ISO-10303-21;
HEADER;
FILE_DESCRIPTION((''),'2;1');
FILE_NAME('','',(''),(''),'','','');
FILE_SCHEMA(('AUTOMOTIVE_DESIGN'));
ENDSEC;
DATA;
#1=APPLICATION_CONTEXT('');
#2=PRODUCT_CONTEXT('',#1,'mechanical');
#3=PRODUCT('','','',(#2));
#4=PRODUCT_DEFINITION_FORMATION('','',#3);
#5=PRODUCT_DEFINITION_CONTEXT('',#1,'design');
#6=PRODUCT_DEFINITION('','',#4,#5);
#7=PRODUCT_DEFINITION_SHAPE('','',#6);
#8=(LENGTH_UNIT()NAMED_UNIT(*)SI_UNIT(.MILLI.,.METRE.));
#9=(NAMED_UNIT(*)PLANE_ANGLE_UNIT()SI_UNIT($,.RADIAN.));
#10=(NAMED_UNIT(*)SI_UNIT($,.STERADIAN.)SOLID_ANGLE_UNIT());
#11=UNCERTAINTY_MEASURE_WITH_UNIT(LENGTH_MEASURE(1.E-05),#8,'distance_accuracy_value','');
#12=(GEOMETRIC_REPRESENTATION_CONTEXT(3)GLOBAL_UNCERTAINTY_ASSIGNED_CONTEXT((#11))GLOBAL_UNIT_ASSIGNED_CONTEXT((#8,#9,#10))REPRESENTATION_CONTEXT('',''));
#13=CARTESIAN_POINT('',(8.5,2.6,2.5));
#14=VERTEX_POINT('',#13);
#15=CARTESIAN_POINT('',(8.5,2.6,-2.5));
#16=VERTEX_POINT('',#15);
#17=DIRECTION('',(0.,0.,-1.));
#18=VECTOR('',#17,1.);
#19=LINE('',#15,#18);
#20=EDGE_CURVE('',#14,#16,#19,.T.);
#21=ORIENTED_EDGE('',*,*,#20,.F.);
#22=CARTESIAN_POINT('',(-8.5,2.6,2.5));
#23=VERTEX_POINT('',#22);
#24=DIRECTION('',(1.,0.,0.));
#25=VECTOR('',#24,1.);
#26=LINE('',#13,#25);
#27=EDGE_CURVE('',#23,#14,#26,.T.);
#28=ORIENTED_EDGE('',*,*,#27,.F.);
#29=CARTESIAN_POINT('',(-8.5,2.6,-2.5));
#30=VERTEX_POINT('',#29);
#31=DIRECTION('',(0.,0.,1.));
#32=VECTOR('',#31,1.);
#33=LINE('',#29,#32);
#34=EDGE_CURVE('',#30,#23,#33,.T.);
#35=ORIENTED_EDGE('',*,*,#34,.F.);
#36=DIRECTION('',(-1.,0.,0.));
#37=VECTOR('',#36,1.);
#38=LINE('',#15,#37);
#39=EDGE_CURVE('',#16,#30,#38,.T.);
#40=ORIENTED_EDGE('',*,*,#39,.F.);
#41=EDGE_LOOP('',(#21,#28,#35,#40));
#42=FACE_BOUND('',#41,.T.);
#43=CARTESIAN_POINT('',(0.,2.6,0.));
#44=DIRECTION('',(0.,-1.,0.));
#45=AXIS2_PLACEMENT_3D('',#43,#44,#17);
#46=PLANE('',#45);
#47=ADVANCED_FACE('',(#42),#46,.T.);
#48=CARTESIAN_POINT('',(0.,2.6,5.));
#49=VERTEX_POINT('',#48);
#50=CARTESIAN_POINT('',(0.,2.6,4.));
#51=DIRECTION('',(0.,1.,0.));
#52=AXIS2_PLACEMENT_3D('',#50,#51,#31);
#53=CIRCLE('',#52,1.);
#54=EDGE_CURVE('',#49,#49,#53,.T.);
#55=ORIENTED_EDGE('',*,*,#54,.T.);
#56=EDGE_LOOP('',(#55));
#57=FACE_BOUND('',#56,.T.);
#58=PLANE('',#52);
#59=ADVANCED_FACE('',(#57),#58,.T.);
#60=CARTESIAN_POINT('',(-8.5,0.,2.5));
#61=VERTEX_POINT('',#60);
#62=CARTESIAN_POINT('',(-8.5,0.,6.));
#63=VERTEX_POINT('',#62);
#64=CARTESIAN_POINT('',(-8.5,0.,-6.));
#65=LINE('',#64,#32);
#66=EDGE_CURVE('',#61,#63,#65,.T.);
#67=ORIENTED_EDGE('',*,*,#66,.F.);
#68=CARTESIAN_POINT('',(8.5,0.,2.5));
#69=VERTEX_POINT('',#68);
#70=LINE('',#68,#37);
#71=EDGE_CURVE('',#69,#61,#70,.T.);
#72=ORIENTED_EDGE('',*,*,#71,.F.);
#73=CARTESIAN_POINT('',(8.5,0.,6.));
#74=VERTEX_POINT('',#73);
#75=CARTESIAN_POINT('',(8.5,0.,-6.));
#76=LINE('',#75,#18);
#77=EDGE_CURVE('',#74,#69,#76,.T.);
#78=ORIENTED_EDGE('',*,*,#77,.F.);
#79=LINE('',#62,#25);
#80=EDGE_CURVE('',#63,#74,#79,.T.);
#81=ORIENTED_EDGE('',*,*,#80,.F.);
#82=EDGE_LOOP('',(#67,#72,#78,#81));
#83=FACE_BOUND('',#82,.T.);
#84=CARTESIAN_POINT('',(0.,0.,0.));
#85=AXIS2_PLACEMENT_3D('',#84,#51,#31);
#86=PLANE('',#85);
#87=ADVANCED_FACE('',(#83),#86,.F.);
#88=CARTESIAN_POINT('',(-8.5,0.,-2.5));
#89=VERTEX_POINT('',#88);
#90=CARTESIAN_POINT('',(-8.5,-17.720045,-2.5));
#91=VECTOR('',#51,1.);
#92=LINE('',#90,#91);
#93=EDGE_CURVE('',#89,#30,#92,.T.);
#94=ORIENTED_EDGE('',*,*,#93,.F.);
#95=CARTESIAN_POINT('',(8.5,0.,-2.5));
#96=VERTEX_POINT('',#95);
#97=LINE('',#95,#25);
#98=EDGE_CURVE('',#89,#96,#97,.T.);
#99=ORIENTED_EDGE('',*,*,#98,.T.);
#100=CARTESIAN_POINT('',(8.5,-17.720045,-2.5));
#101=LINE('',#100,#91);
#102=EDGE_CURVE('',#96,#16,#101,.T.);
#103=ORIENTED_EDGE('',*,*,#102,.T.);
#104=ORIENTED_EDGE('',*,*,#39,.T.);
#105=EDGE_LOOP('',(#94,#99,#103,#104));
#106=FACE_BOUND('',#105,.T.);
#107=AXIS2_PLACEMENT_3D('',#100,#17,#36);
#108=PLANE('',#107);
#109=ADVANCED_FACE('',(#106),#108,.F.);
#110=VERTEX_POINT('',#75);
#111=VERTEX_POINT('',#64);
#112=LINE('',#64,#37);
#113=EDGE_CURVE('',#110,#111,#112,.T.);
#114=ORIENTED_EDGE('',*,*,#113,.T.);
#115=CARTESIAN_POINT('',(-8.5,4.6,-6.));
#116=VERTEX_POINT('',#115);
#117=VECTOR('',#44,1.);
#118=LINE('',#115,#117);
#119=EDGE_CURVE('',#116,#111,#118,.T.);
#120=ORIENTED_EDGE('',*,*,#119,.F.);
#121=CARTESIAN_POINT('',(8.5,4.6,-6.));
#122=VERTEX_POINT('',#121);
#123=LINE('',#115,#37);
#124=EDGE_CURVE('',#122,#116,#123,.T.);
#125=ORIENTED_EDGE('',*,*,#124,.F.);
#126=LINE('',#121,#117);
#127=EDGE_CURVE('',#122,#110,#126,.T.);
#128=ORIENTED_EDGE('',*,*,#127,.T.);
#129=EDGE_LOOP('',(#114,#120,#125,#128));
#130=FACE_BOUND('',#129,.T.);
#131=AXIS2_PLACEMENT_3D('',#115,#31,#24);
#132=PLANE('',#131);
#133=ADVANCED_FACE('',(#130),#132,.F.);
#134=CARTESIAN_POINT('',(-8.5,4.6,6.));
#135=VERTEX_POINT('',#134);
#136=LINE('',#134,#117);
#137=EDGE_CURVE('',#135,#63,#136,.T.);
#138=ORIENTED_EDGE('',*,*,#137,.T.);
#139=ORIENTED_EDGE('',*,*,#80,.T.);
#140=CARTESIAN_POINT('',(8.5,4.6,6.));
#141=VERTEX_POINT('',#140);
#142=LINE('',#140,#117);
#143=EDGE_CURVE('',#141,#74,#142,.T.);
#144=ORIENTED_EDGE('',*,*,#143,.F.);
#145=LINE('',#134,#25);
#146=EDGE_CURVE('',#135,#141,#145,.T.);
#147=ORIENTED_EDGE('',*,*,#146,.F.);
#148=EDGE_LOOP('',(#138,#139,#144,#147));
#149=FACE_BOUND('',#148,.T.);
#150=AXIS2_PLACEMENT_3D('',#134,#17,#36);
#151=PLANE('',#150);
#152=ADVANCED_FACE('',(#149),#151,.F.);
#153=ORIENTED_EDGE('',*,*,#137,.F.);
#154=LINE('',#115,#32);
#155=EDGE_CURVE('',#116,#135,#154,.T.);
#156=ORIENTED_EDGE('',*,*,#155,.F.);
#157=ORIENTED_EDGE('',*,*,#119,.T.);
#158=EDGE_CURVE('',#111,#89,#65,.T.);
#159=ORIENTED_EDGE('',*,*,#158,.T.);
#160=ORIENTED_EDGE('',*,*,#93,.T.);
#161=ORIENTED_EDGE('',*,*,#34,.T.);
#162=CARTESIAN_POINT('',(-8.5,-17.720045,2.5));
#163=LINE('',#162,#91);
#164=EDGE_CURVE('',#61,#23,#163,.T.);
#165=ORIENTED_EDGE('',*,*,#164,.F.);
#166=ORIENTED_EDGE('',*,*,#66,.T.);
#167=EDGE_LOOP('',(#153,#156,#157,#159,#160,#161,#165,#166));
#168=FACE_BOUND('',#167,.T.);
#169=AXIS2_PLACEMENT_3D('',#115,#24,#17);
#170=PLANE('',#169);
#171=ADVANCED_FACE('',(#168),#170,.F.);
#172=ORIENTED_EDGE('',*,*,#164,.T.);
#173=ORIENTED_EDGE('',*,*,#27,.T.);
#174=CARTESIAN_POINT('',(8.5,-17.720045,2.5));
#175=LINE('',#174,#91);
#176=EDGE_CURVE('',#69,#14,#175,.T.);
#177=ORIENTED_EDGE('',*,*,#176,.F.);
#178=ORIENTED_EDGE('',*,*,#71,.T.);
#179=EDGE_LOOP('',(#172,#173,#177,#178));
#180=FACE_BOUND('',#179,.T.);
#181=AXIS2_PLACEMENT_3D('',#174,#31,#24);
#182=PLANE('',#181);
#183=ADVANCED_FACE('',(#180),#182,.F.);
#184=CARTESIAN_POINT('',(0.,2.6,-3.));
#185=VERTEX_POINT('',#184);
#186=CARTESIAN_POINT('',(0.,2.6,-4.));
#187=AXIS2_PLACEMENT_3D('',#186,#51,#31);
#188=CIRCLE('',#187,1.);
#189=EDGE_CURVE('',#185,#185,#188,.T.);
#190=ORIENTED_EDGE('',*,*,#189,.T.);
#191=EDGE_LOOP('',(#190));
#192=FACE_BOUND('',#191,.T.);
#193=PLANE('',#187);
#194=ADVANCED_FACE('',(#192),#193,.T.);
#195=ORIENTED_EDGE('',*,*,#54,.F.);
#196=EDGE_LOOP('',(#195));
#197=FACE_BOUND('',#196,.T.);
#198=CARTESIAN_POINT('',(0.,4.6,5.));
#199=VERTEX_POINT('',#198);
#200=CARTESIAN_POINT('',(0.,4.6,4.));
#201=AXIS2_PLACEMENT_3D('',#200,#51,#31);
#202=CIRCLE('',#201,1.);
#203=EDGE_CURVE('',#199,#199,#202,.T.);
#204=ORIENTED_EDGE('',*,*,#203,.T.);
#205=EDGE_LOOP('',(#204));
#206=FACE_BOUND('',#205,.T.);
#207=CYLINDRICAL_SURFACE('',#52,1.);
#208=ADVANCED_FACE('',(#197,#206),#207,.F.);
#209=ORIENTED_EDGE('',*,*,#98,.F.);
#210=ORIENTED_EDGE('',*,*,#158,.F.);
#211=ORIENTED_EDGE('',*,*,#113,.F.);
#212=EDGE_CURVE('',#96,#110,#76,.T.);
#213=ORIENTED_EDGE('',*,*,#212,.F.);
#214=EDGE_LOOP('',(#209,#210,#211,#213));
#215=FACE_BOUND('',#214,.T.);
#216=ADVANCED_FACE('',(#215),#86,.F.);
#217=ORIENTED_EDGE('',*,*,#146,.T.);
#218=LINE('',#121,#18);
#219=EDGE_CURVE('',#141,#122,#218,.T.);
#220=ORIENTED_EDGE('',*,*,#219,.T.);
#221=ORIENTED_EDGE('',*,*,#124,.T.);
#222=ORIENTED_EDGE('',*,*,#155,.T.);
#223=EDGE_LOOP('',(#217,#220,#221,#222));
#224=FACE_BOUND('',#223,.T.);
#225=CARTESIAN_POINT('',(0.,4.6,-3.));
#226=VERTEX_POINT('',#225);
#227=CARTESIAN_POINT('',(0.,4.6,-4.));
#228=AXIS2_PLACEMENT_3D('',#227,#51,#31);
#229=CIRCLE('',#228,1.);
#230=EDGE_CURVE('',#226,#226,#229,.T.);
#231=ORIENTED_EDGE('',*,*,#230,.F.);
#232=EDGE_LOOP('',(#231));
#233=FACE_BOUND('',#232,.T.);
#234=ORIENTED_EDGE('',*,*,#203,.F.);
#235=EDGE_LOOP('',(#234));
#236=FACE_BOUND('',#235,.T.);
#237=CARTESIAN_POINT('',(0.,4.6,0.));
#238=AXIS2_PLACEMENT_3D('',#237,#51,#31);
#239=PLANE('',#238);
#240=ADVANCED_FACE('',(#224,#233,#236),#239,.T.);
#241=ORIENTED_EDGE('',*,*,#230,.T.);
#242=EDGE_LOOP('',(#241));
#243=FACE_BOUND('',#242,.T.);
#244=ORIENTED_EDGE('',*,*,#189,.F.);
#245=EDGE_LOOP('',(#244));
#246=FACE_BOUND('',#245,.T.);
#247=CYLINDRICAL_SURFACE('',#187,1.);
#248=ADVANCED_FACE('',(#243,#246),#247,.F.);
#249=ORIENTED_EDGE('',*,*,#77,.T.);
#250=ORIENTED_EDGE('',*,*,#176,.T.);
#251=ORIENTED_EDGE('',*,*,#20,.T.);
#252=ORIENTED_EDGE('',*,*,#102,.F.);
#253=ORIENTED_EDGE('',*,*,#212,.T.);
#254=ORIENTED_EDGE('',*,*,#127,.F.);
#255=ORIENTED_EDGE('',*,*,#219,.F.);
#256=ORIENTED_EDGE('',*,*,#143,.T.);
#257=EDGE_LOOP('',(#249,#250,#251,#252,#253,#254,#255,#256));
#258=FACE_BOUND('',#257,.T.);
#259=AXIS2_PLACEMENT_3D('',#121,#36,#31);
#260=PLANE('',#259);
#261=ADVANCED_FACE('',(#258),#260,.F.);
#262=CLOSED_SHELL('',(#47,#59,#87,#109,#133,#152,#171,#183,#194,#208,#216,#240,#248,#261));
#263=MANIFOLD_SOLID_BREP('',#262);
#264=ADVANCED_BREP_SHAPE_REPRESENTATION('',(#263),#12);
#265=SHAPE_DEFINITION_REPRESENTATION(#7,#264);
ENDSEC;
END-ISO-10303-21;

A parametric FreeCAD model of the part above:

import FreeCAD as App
import Part
import Sketcher
from FreeCAD import Vector


def add_polygon(sketch, points):
    """Adds a closed chain of lines whose ends are joined by coincident constraints."""
    first, n = sketch.GeometryCount, len(points)
    for a, b in zip(points, points[1:] + points[:1]):
        sketch.addGeometry(Part.LineSegment(App.Vector(*a, 0), App.Vector(*b, 0)), False)
    for i in range(n):
        sketch.addConstraint(Sketcher.Constraint("Coincident", first + i, 2, first + (i + 1) % n, 1))

doc = App.newDocument("Part")
body = doc.addObject("PartDesign::Body", "Body")

# Sketch on XZ plane
sketch1 = body.newObject("Sketcher::SketchObject", "Sketch")
sketch1.AttachmentSupport = (doc.getObject("XZ_Plane"), [""])
sketch1.MapMode = "FlatFace"
add_polygon(sketch1, [(-8, -6), (-8, 6), (8, 6), (8, -6)])  # lines 0-3
sketch1.addConstraint(Sketcher.Constraint("Vertical", 0))
sketch1.addConstraint(Sketcher.Constraint("Horizontal", 1))
sketch1.addConstraint(Sketcher.Constraint("Vertical", 2))
sketch1.addConstraint(Sketcher.Constraint("Horizontal", 3))
sketch1.addConstraint(Sketcher.Constraint("Symmetric", 0, 2, 2, 2, -1, 1))
sketch1.addConstraint(Sketcher.Constraint("DistanceX", 1, 1, 1, 2, 17.0))
sketch1.addConstraint(Sketcher.Constraint("DistanceY", 0, 1, 0, 2, 12.0))
pad1 = body.newObject("PartDesign::Pad", "Pad")
pad1.Profile = sketch1
pad1.Length = 4.6
pad1.Reversed = True

# Sketch on XZ plane
sketch2 = body.newObject("Sketcher::SketchObject", "Sketch001")
sketch2.AttachmentSupport = (doc.getObject("XZ_Plane"), [""])
sketch2.MapMode = "FlatFace"
sketch2.AttachmentOffset = App.Placement(Vector(0, 0, -2.6), App.Rotation())
add_polygon(sketch2, [(-8, -2), (-8, 2), (8, 2), (8, -2)])  # lines 0-3
sketch2.addConstraint(Sketcher.Constraint("Vertical", 0))
sketch2.addConstraint(Sketcher.Constraint("Horizontal", 1))
sketch2.addConstraint(Sketcher.Constraint("Vertical", 2))
sketch2.addConstraint(Sketcher.Constraint("Horizontal", 3))
sketch2.addConstraint(Sketcher.Constraint("Symmetric", 0, 2, 2, 2, -1, 1))
sketch2.addConstraint(Sketcher.Constraint("DistanceX", 1, 1, 1, 2, 17.0))
sketch2.addConstraint(Sketcher.Constraint("DistanceY", 0, 1, 0, 2, 5.0))
pocket1 = body.newObject("PartDesign::Pocket", "Pocket")
pocket1.Profile = sketch2
pocket1.Length = 2.6
pocket1.Reversed = True

# Sketch on XZ plane
sketch3 = body.newObject("Sketcher::SketchObject", "Sketch002")
sketch3.AttachmentSupport = (doc.getObject("XZ_Plane"), [""])
sketch3.MapMode = "FlatFace"
sketch3.AttachmentOffset = App.Placement(Vector(0, 0, -4.6), App.Rotation())
sketch3.addGeometry(Part.Circle(Vector(0, -4, 0), Vector(0, 0, 1), 1), False)
sketch3.addGeometry(Part.Circle(Vector(0, 4, 0), Vector(0, 0, 1), 1), False)
sketch3.addConstraint(Sketcher.Constraint("Equal", 0, 1))
sketch3.addConstraint(Sketcher.Constraint("Symmetric", 0, 3, 1, 3, -1, 1))
sketch3.addConstraint(Sketcher.Constraint("PointOnObject", 0, 3, -2))
sketch3.addConstraint(Sketcher.Constraint("Diameter", 0, 2.0))
sketch3.addConstraint(Sketcher.Constraint("DistanceY", 0, 3, -1, 1, 4.0))
pocket2 = body.newObject("PartDesign::Pocket", "Pocket001")
pocket2.Profile = sketch3
pocket2.Length = 2
pocket2.Reversed = True

doc.recompute()
